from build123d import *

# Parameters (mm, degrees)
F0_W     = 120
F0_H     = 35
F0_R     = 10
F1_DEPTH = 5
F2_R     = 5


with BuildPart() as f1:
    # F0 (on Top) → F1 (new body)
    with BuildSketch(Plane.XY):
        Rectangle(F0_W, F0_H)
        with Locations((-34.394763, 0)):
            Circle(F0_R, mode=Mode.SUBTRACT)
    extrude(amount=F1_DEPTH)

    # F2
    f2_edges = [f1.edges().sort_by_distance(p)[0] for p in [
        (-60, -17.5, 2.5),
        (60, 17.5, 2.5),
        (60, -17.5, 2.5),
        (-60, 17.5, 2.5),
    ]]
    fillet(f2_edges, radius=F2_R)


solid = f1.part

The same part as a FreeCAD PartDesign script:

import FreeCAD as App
import Part
import Sketcher


def edges_at(feature, points):
    """Names of the edges that pass closest to the given points."""
    edges = feature.Shape.Edges
    near = lambda p: min(range(len(edges)), key=lambda i: edges[i].distToShape(Part.Vertex(*p))[0])
    return sorted({f"Edge{near(p) + 1}" for p in points})

doc = App.newDocument("Part")
body = doc.addObject("PartDesign::Body", "Body")

# Sketch on XY plane
sketch1 = body.newObject("Sketcher::SketchObject", "Sketch")
sketch1.AttachmentSupport = (doc.getObject("XY_Plane"), [""])
sketch1.MapMode = "FlatFace"
sketch1.addGeometry([
    Part.LineSegment(App.Vector(-60, 18, 0), App.Vector(-60, -18, 0)),  # 0
    Part.LineSegment(App.Vector(-60, -18, 0), App.Vector(60, -18, 0)),  # 1
    Part.LineSegment(App.Vector(60, -18, 0), App.Vector(60, 18, 0)),  # 2
    Part.LineSegment(App.Vector(60, 18, 0), App.Vector(-60, 18, 0)),  # 3
    Part.Circle(App.Vector(-34, 0, 0), App.Vector(0, 0, 1), 10),  # 4
], False)
sketch1.addConstraint([
    Sketcher.Constraint("Coincident", 0, 2, 1, 1),
    Sketcher.Constraint("Coincident", 1, 2, 2, 1),
    Sketcher.Constraint("Coincident", 2, 2, 3, 1),
    Sketcher.Constraint("Coincident", 3, 2, 0, 1),
    Sketcher.Constraint("Vertical", 0),
    Sketcher.Constraint("Horizontal", 1),
    Sketcher.Constraint("Vertical", 2),
    Sketcher.Constraint("Horizontal", 3),
    Sketcher.Constraint("Symmetric", 0, 2, 2, 2, -1, 1),
    Sketcher.Constraint("PointOnObject", 4, 3, -1),
    Sketcher.Constraint("Diameter", 4, 20.0),
    Sketcher.Constraint("DistanceX", 1, 1, 1, 2, 120.0),
    Sketcher.Constraint("DistanceY", 0, 2, 0, 1, 35.0),
    Sketcher.Constraint("DistanceX", 4, 3, -1, 1, 34.394763),
])
pad1 = body.newObject("PartDesign::Pad", "Pad")
pad1.Profile = sketch1
pad1.Length = 5
doc.recompute()

fillet = body.newObject("PartDesign::Fillet", "Fillet")
fillet.Base = (pad1, edges_at(pad1, [
    (-60, -17.5, 2.5),
    (60, 17.5, 2.5),
    (60, -17.5, 2.5),
    (-60, 17.5, 2.5),
]))
fillet.Radius = 5

doc.recompute()
